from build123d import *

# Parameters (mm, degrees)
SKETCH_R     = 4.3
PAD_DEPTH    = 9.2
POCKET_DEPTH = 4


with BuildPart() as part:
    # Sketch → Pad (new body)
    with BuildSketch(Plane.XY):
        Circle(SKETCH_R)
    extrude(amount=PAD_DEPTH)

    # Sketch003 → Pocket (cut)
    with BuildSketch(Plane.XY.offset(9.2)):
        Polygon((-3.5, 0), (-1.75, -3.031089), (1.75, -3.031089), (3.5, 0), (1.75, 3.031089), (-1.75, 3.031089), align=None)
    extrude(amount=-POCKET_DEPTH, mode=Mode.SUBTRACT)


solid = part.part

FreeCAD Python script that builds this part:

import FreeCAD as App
import Part
import Sketcher
Q = App.Units.Quantity


def add_polygon(sketch, points):
    """Adds a closed chain of lines whose ends are joined by coincident constraints."""
    first, n = sketch.GeometryCount, len(points)
    for a, b in zip(points, points[1:] + points[:1]):
        sketch.addGeometry(Part.LineSegment(App.Vector(*a, 0), App.Vector(*b, 0)), False)
    for i in range(n):
        sketch.addConstraint(Sketcher.Constraint("Coincident", first + i, 2, first + (i + 1) % n, 1))

doc = App.newDocument("Part")
body = doc.addObject("PartDesign::Body", "Body")

# Sketch on XY plane
sketch1 = body.newObject("Sketcher::SketchObject", "Sketch")
sketch1.AttachmentSupport = (doc.getObject("XY_Plane"), [""])
sketch1.MapMode = "FlatFace"
sketch1.addGeometry(Part.Circle(App.Vector(0, 0, 0), App.Vector(0, 0, 1), 4.3), False)
sketch1.addConstraint(Sketcher.Constraint("Coincident", 0, 3, -1, 1))
sketch1.addConstraint(Sketcher.Constraint("Diameter", 0, 8.6))
pad1 = body.newObject("PartDesign::Pad", "Pad")
pad1.Profile = sketch1
pad1.Length = 9.2

# Sketch on XY plane
sketch2 = body.newObject("Sketcher::SketchObject", "Sketch001")
sketch2.AttachmentSupport = (doc.getObject("XY_Plane"), [""])
sketch2.MapMode = "FlatFace"
sketch2.AttachmentOffset = App.Placement(App.Vector(0, 0, 9.2), App.Rotation())
add_polygon(sketch2, [(-3.5, 0), (-1.75, -3.031089), (1.75, -3.031089), (3.5, 0), (1.75, 3.031089), (-1.75, 3.031089)])  # lines 0-5
sketch2.addConstraint(Sketcher.Constraint("Horizontal", 1))
sketch2.addConstraint(Sketcher.Constraint("Horizontal", 4))
sketch2.addConstraint(Sketcher.Constraint("Symmetric", 0, 2, 3, 2, -1, 1))
sketch2.addConstraint(Sketcher.Constraint("Symmetric", 2, 2, 5, 2, -1, 1))
sketch2.addConstraint(Sketcher.Constraint("PointOnObject", 2, 2, -1))
sketch2.addConstraint(Sketcher.Constraint("Parallel", 2, 5))
sketch2.addConstraint(Sketcher.Constraint("Vertical", 1, 2, 3, 2))
sketch2.addConstraint(Sketcher.Constraint("Angle", 0, Q("-60.000001 deg")))
sketch2.addConstraint(Sketcher.Constraint("DistanceX", 1, 1, 1, 2, 3.5))
sketch2.addConstraint(Sketcher.Constraint("DistanceX", 5, 2, 2, 2, 7.0))
pocket1 = body.newObject("PartDesign::Pocket", "Pocket")
pocket1.Profile = sketch2
pocket1.Length = 4

doc.recompute()
